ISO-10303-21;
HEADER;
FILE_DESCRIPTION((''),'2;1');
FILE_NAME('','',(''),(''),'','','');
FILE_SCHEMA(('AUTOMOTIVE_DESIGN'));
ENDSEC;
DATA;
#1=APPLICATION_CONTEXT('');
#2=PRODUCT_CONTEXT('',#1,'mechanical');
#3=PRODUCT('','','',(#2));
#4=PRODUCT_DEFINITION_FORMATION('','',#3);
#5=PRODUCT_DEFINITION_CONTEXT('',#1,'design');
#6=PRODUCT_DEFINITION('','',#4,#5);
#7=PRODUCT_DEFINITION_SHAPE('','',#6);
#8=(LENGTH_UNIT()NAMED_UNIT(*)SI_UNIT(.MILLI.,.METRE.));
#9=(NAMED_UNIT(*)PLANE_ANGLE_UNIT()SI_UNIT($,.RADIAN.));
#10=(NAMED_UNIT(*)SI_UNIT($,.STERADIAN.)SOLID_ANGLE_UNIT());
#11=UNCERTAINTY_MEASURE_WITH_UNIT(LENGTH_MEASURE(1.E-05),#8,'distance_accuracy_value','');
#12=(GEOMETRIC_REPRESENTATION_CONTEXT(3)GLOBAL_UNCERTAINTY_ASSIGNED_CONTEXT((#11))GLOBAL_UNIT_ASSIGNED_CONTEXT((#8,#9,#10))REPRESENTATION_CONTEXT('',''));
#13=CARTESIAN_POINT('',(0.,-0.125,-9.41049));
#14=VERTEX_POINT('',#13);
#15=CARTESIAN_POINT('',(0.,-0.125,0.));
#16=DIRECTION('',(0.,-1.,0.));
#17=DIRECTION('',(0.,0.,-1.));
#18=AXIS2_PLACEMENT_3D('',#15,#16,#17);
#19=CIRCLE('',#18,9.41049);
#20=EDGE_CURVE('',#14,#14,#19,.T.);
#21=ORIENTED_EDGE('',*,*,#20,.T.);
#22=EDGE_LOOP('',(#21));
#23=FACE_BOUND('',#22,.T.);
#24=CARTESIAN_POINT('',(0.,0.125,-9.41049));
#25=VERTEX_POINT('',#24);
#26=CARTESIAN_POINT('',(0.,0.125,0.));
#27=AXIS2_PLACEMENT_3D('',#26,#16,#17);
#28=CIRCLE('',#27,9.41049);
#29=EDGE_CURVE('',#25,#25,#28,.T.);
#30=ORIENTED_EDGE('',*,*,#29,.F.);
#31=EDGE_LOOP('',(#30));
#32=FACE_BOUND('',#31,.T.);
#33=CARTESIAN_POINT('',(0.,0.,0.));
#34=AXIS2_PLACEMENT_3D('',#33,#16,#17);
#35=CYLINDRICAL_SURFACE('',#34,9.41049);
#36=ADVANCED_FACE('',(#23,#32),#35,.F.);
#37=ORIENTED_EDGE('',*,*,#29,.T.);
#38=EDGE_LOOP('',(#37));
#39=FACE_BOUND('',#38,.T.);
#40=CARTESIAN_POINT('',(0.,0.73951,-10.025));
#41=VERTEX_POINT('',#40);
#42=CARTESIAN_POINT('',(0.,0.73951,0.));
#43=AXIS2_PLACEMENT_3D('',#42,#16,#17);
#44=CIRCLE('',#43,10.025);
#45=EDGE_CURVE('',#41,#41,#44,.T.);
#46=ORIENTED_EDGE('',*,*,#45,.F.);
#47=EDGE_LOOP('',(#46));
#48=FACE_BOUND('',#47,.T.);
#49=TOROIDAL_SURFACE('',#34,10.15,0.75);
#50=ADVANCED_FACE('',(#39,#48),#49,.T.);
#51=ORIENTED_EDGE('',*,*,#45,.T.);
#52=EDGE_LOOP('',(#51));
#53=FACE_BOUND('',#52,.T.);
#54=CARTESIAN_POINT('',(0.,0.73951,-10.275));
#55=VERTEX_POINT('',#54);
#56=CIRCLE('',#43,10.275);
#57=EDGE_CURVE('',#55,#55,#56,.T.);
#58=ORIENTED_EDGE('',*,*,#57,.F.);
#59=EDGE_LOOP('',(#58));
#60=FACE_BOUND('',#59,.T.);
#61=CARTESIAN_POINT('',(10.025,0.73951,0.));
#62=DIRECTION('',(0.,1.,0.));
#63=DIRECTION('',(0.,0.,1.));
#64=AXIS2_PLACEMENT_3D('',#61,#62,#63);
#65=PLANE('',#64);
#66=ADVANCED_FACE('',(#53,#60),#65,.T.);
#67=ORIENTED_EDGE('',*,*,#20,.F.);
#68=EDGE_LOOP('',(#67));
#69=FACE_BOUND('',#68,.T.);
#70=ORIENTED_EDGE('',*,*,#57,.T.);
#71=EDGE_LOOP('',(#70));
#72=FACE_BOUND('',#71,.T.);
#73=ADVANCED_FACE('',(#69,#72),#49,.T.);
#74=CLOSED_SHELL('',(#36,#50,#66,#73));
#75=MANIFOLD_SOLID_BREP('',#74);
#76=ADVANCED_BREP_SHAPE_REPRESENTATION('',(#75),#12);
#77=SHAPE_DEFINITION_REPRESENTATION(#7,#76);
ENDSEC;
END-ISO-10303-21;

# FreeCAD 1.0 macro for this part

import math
import FreeCAD as App
import Part
import Sketcher

doc = App.newDocument("Part")
params = doc.addObject("Spreadsheet::Sheet", "Params")
for row, (alias, value) in enumerate([
    ("sketch1_radius", "0.75 mm"),
    ("sketch1_width", "0.25 mm"),
    ("revolution_angle", "360 deg"),
], start=1):
    params.set(f"A{row}", alias)
    params.set(f"B{row}", "=" + value)
    params.setAlias(f"B{row}", alias)

body = doc.addObject("PartDesign::Body", "Body")

sketch1 = body.newObject("Sketcher::SketchObject", "Sketch")
sketch1.AttachmentSupport = (doc.getObject("XY_Plane"), [""])
sketch1.MapMode = "FlatFace"
sketch1.addGeometry([
    Part.LineSegment(App.Vector(9.41, 0.12, 0), App.Vector(9.41, -0.12, 0)),
    Part.ArcOfCircle(Part.Circle(App.Vector(10.15, 0, 0), App.Vector(0, 0, 1), 0.75), math.radians(-170), math.radians(80)),
    Part.LineSegment(App.Vector(10.28, 0.74, 0), App.Vector(10.03, 0.74, 0)),
    Part.ArcOfCircle(Part.Circle(App.Vector(10.15, 0, 0), App.Vector(0, 0, 1), 0.75), math.radians(100), math.radians(170)),
], False)
sketch1.addConstraint([
    Sketcher.Constraint("Coincident", 0, 2, 1, 1),
    Sketcher.Constraint("Coincident", 1, 2, 2, 1),
    Sketcher.Constraint("Coincident", 2, 2, 3, 1),
    Sketcher.Constraint("Coincident", 3, 2, 0, 1),
    Sketcher.Constraint("Vertical", 0),
    Sketcher.Constraint("Horizontal", 2),
    Sketcher.Constraint("Coincident", 3, 3, 1, 3),
    Sketcher.Constraint("Equal", 1, 3),
    Sketcher.Constraint("PointOnObject", 1, 3, -1),
    Sketcher.Constraint("Equal", 2, 0),
    Sketcher.Constraint("Radius", 1, 0.75),
    Sketcher.Constraint("DistanceX", 2, 2, 2, 1, 0.25),
    Sketcher.Constraint("DistanceX", -1, 1, 1, 3, 10.15),
])
sketch1.setExpression("Constraints[10]", "Params.sketch1_radius")
sketch1.setExpression("Constraints[11]", "Params.sketch1_width")
revolution = body.newObject("PartDesign::Revolution", "Revolution")
revolution.Profile = sketch1
revolution.ReferenceAxis = (sketch1, ["V_Axis"])
revolution.setExpression("Angle", "Params.revolution_angle")

doc.recompute()
